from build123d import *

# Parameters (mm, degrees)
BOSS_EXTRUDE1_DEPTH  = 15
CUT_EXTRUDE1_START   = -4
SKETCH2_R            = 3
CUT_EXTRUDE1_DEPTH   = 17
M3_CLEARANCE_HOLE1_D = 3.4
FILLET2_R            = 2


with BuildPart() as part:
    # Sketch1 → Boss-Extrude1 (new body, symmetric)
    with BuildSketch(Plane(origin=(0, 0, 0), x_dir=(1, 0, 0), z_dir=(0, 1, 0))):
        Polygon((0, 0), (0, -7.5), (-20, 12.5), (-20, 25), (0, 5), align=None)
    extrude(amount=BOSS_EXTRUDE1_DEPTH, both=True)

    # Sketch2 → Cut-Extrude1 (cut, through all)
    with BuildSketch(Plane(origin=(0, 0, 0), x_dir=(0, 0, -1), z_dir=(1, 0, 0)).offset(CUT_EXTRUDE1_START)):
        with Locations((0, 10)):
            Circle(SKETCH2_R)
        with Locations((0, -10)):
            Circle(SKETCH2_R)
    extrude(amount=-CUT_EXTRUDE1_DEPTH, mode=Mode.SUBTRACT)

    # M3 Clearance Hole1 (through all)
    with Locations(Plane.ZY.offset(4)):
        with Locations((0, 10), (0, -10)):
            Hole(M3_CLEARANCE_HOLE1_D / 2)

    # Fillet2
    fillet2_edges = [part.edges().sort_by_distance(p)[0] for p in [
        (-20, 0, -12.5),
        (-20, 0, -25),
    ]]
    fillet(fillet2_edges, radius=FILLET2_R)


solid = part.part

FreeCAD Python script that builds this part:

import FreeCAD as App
import Part
import Sketcher
from FreeCAD import Vector
Q = App.Units.Quantity


def edges_at(feature, points):
    """Names of the edges that pass closest to the given points."""
    edges = feature.Shape.Edges
    near = lambda p: min(range(len(edges)), key=lambda i: edges[i].distToShape(Part.Vertex(*p))[0])
    return sorted({f"Edge{near(p) + 1}" for p in points})


def add_polygon(sketch, points):
    """Adds a closed chain of lines whose ends are joined by coincident constraints."""
    first, n = sketch.GeometryCount, len(points)
    for a, b in zip(points, points[1:] + points[:1]):
        sketch.addGeometry(Part.LineSegment(App.Vector(*a, 0), App.Vector(*b, 0)), False)
    for i in range(n):
        sketch.addConstraint(Sketcher.Constraint("Coincident", first + i, 2, first + (i + 1) % n, 1))

doc = App.newDocument("Part")
params = doc.addObject("Spreadsheet::Sheet", "Params")
for row, (alias, value) in enumerate([
    ("sketch1_height", "12.5 mm"),
    ("pad1_length", "30 mm"),
    ("sketch2_diameter", "6 mm"),
    ("sketch3_diameter", "3.4 mm"),
    ("hole_diameter", "3.4 mm"),
    ("fillet_radius", "2 mm"),
], start=1):
    params.set(f"A{row}", alias)
    params.set(f"B{row}", "=" + value)
    params.setAlias(f"B{row}", alias)

body = doc.addObject("PartDesign::Body", "Body")

sketch1 = body.newObject("Sketcher::SketchObject", "Sketch")
sketch1.AttachmentSupport = (doc.getObject("XZ_Plane"), [""])
sketch1.MapMode = "FlatFace"
add_polygon(sketch1, [(0, 8), (0, -5), (-20, -25), (-20, -12)])
sketch1.addConstraint(Sketcher.Constraint("Vertical", 0))
sketch1.addConstraint(Sketcher.Constraint("Vertical", 2))
sketch1.addConstraint(Sketcher.Constraint("PointOnObject", 0, 2, -2))
sketch1.addConstraint(Sketcher.Constraint("Parallel", 1, 3))
sketch1.addConstraint(Sketcher.Constraint("Angle", 1, Q("-135 deg")))
sketch1.addConstraint(Sketcher.Constraint("DistanceY", 0, 2, 0, 1, 12.5))
sketch1.addConstraint(Sketcher.Constraint("DistanceY", 0, 2, -1, 1, 5.0))
sketch1.addConstraint(Sketcher.Constraint("DistanceX", 1, 2, -1, 1, 20.0))
sketch1.setExpression("Constraints[9]", "Params.sketch1_height")
pad1 = body.newObject("PartDesign::Pad", "Pad")
pad1.Profile = sketch1
pad1.setExpression("Length", "Params.pad1_length")
pad1.Midplane = True

sketch2 = body.newObject("Sketcher::SketchObject", "Sketch001")
sketch2.AttachmentSupport = (doc.getObject("YZ_Plane"), [""])
sketch2.MapMode = "FlatFace"
sketch2.AttachmentOffset = App.Placement(Vector(0, 0, -4), App.Rotation())
sketch2.addGeometry(Part.Circle(Vector(10, 0, 0), Vector(0, 0, 1), 3), False)
sketch2.addGeometry(Part.Circle(Vector(-10, 0, 0), Vector(0, 0, 1), 3), False)
sketch2.addConstraint(Sketcher.Constraint("Equal", 0, 1))
sketch2.addConstraint(Sketcher.Constraint("Symmetric", 0, 3, 1, 3, -1, 1))
sketch2.addConstraint(Sketcher.Constraint("PointOnObject", 0, 3, -1))
sketch2.addConstraint(Sketcher.Constraint("Diameter", 0, 6.0))
sketch2.addConstraint(Sketcher.Constraint("DistanceX", -1, 1, 0, 3, 10.0))
sketch2.setExpression("Constraints[3]", "Params.sketch2_diameter")
pocket1 = body.newObject("PartDesign::Pocket", "Pocket")
pocket1.Profile = sketch2
pocket1.Type = "ThroughAll"

sketch3 = body.newObject("Sketcher::SketchObject", "Sketch002")
sketch3.AttachmentSupport = (doc.getObject("YZ_Plane"), [""])
sketch3.MapMode = "FlatFace"
sketch3.AttachmentOffset = App.Placement(Vector(0, 0, -4), App.Rotation())
sketch3.addGeometry(Part.Circle(Vector(10, 0, 0), Vector(0, 0, 1), 1.7), False)
sketch3.addGeometry(Part.Circle(Vector(-10, 0, 0), Vector(0, 0, 1), 1.7), False)
sketch3.addConstraint(Sketcher.Constraint("Equal", 0, 1))
sketch3.addConstraint(Sketcher.Constraint("Symmetric", 0, 3, 1, 3, -1, 1))
sketch3.addConstraint(Sketcher.Constraint("PointOnObject", 0, 3, -1))
sketch3.addConstraint(Sketcher.Constraint("Diameter", 0, 3.4))
sketch3.addConstraint(Sketcher.Constraint("DistanceX", -1, 1, 0, 3, 10.0))
sketch3.setExpression("Constraints[3]", "Params.sketch3_diameter")
doc.recompute()
hole = body.newObject("PartDesign::Hole", "Hole")
hole.Profile = sketch3
hole.ThreadType = "None"
hole.setExpression("Diameter", "Params.hole_diameter")
hole.DepthType = "ThroughAll"
hole.Reversed = True
doc.recompute()

fillet = body.newObject("PartDesign::Fillet", "Fillet")
fillet.Base = (hole, edges_at(hole, [(-20, 0, -12.5), (-20, 0, -25)]))
fillet.setExpression("Radius", "Params.fillet_radius")

doc.recompute()
